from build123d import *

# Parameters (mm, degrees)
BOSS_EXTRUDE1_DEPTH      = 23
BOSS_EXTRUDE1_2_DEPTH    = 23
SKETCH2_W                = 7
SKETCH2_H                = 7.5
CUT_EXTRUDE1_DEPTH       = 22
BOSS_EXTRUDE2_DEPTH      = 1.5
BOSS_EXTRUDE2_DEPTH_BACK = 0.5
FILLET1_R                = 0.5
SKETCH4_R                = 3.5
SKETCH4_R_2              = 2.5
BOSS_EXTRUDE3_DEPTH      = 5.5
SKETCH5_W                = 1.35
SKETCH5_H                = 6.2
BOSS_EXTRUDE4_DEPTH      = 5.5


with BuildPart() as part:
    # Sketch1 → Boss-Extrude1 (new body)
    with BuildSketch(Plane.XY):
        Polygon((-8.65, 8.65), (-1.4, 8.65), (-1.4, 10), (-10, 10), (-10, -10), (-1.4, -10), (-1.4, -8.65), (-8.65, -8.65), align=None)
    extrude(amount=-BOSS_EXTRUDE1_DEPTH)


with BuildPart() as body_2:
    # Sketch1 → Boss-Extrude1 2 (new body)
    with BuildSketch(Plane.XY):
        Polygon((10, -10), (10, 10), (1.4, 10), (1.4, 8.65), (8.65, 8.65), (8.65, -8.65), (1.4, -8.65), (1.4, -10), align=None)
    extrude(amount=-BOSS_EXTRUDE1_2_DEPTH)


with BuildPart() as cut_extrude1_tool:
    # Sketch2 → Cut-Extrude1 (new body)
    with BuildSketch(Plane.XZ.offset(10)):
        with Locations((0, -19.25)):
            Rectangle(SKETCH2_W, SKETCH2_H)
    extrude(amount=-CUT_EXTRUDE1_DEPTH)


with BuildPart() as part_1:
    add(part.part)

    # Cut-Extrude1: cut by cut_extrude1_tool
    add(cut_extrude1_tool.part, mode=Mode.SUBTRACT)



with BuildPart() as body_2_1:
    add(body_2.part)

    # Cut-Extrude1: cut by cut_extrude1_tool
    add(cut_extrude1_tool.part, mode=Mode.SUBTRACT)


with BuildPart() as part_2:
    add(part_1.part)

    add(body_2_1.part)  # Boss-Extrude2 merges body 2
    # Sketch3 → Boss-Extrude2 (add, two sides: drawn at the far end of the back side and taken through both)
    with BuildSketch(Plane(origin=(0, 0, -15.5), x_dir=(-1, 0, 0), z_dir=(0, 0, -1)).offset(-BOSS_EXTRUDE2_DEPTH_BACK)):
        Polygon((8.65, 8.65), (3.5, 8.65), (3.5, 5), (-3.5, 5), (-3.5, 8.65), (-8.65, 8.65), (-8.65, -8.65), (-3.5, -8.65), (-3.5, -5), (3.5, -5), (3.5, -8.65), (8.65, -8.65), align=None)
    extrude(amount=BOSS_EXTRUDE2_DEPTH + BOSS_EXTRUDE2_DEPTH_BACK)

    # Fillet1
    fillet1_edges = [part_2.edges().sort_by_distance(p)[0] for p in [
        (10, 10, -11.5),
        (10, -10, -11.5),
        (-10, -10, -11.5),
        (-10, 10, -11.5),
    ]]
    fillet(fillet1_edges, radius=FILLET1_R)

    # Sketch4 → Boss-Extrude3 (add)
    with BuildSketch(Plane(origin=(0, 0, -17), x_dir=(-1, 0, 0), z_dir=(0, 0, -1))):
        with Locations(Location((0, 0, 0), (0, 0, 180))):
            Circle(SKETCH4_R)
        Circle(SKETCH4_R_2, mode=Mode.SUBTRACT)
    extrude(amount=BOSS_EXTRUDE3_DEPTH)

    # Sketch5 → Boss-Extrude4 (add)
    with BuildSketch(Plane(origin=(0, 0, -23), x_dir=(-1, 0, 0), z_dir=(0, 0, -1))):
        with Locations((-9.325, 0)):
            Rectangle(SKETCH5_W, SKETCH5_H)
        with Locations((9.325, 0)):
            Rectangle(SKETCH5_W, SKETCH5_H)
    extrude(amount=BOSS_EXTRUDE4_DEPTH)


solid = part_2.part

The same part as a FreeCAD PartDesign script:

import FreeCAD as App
import Part
import Sketcher
from FreeCAD import Vector
Q = App.Units.Quantity


def edges_at(feature, points):
    """Names of the edges that pass closest to the given points."""
    edges = feature.Shape.Edges
    near = lambda p: min(range(len(edges)), key=lambda i: edges[i].distToShape(Part.Vertex(*p))[0])
    return sorted({f"Edge{near(p) + 1}" for p in points})

doc = App.newDocument("Part")
body = doc.addObject("PartDesign::Body", "Body")

# Sketch on XY plane
sketch1 = body.newObject("Sketcher::SketchObject", "Sketch")
sketch1.AttachmentSupport = (doc.getObject("XY_Plane"), [""])
sketch1.MapMode = "FlatFace"
sketch1.addGeometry([
    Part.LineSegment(Vector(-8.65, 8.65, 0), Vector(-1.4, 8.65, 0)),  # 0
    Part.LineSegment(Vector(-1.4, 8.65, 0), Vector(-1.4, 10, 0)),  # 1
    Part.LineSegment(Vector(-1.4, 10, 0), Vector(-10, 10, 0)),  # 2
    Part.LineSegment(Vector(-10, 10, 0), Vector(-10, -10, 0)),  # 3
    Part.LineSegment(Vector(-10, -10, 0), Vector(-1.4, -10, 0)),  # 4
    Part.LineSegment(Vector(-1.4, -10, 0), Vector(-1.4, -8.65, 0)),  # 5
    Part.LineSegment(Vector(-1.4, -8.65, 0), Vector(-8.65, -8.65, 0)),  # 6
    Part.LineSegment(Vector(-8.65, -8.65, 0), Vector(-8.65, 8.65, 0)),  # 7
], False)
sketch1.addConstraint([
    Sketcher.Constraint("Coincident", 0, 2, 1, 1),
    Sketcher.Constraint("Coincident", 1, 2, 2, 1),
    Sketcher.Constraint("Coincident", 2, 2, 3, 1),
    Sketcher.Constraint("Coincident", 3, 2, 4, 1),
    Sketcher.Constraint("Coincident", 4, 2, 5, 1),
    Sketcher.Constraint("Coincident", 5, 2, 6, 1),
    Sketcher.Constraint("Coincident", 6, 2, 7, 1),
    Sketcher.Constraint("Coincident", 7, 2, 0, 1),
    Sketcher.Constraint("Horizontal", 0),
    Sketcher.Constraint("Vertical", 1),
    Sketcher.Constraint("Horizontal", 2),
    Sketcher.Constraint("Vertical", 3),
    Sketcher.Constraint("Horizontal", 4),
    Sketcher.Constraint("Vertical", 5),
    Sketcher.Constraint("Horizontal", 6),
    Sketcher.Constraint("Vertical", 7),
    Sketcher.Constraint("Symmetric", 1, 2, 4, 2, -1),
    Sketcher.Constraint("Equal", 1, 5),
    Sketcher.Constraint("DistanceY", 3, 2, 3, 1, Q("20 mm")),
    Sketcher.Constraint("DistanceX", 2, 2, 2, 1, Q("8.6 mm")),
    Sketcher.Constraint("DistanceY", 7, 1, 7, 2, Q("17.3 mm")),
    Sketcher.Constraint("DistanceX", 2, 2, -1, 1, Q("10 mm")),
    Sketcher.Constraint("DistanceX", 0, 1, 0, 2, Q("7.25 mm")),
])
pad1 = body.newObject("PartDesign::Pad", "Pad")
pad1.Profile = sketch1
pad1.Length = 23
pad1.Reversed = True
body2 = doc.addObject("PartDesign::Body", "Body001")

# Sketch on XY plane
sketch2 = body2.newObject("Sketcher::SketchObject", "Sketch001")
sketch2.AttachmentSupport = (doc.getObject("XY_Plane001"), [""])
sketch2.MapMode = "FlatFace"
sketch2.addGeometry([
    Part.LineSegment(Vector(10, -10, 0), Vector(10, 10, 0)),  # 0
    Part.LineSegment(Vector(10, 10, 0), Vector(1.4, 10, 0)),  # 1
    Part.LineSegment(Vector(1.4, 10, 0), Vector(1.4, 8.65, 0)),  # 2
    Part.LineSegment(Vector(1.4, 8.65, 0), Vector(8.65, 8.65, 0)),  # 3
    Part.LineSegment(Vector(8.65, 8.65, 0), Vector(8.65, -8.65, 0)),  # 4
    Part.LineSegment(Vector(8.65, -8.65, 0), Vector(1.4, -8.65, 0)),  # 5
    Part.LineSegment(Vector(1.4, -8.65, 0), Vector(1.4, -10, 0)),  # 6
    Part.LineSegment(Vector(1.4, -10, 0), Vector(10, -10, 0)),  # 7
], False)
sketch2.addConstraint([
    Sketcher.Constraint("Coincident", 0, 2, 1, 1),
    Sketcher.Constraint("Coincident", 1, 2, 2, 1),
    Sketcher.Constraint("Coincident", 2, 2, 3, 1),
    Sketcher.Constraint("Coincident", 3, 2, 4, 1),
    Sketcher.Constraint("Coincident", 4, 2, 5, 1),
    Sketcher.Constraint("Coincident", 5, 2, 6, 1),
    Sketcher.Constraint("Coincident", 6, 2, 7, 1),
    Sketcher.Constraint("Coincident", 7, 2, 0, 1),
    Sketcher.Constraint("Vertical", 0),
    Sketcher.Constraint("Horizontal", 1),
    Sketcher.Constraint("Vertical", 2),
    Sketcher.Constraint("Horizontal", 3),
    Sketcher.Constraint("Vertical", 4),
    Sketcher.Constraint("Horizontal", 5),
    Sketcher.Constraint("Vertical", 6),
    Sketcher.Constraint("Horizontal", 7),
    Sketcher.Constraint("Symmetric", 2, 2, 5, 2, -1),
    Sketcher.Constraint("Equal", 2, 6),
    Sketcher.Constraint("DistanceY", 0, 1, 0, 2, Q("20 mm")),
    Sketcher.Constraint("DistanceX", 1, 2, 1, 1, Q("8.6 mm")),
    Sketcher.Constraint("DistanceY", 4, 2, 4, 1, Q("17.3 mm")),
    Sketcher.Constraint("DistanceX", -1, 1, 0, 2, Q("10 mm")),
    Sketcher.Constraint("DistanceX", 3, 1, 3, 2, Q("7.25 mm")),
])
pad2 = body2.newObject("PartDesign::Pad", "Pad001")
pad2.Profile = sketch2
pad2.Length = 23
pad2.Reversed = True
body3 = doc.addObject("PartDesign::Body", "Body002")

# Sketch on XZ plane
sketch3 = body3.newObject("Sketcher::SketchObject", "Sketch002")
sketch3.AttachmentSupport = (doc.getObject("XZ_Plane002"), [""])
sketch3.MapMode = "FlatFace"
sketch3.AttachmentOffset = App.Placement(Vector(0, 0, 10), App.Rotation())
sketch3.addGeometry([
    Part.LineSegment(Vector(-3.5, -15.5, 0), Vector(-3.5, -23, 0)),
    Part.LineSegment(Vector(-3.5, -23, 0), Vector(3.5, -23, 0)),
    Part.LineSegment(Vector(3.5, -23, 0), Vector(3.5, -15.5, 0)),
    Part.LineSegment(Vector(3.5, -15.5, 0), Vector(-3.5, -15.5, 0)),
], False)
sketch3.addConstraint([
    Sketcher.Constraint("Coincident", 0, 2, 1, 1),
    Sketcher.Constraint("Coincident", 1, 2, 2, 1),
    Sketcher.Constraint("Coincident", 2, 2, 3, 1),
    Sketcher.Constraint("Coincident", 3, 2, 0, 1),
    Sketcher.Constraint("Vertical", 0),
    Sketcher.Constraint("Horizontal", 1),
    Sketcher.Constraint("Vertical", 2),
    Sketcher.Constraint("Horizontal", 3),
    Sketcher.Constraint("DistanceX", 1, 1, 1, 2, Q("7 mm")),
    Sketcher.Constraint("DistanceY", 0, 2, 0, 1, Q("7.5 mm")),
    Sketcher.Constraint("DistanceY", 0, 2, -1, 1, Q("23 mm")),
    Sketcher.Constraint("DistanceX", 0, 2, -1, 1, Q("3.5 mm")),
])
pad3 = body3.newObject("PartDesign::Pad", "Pad002")
pad3.Profile = sketch3
pad3.Length = 22
pad3.Reversed = True
doc.recompute()

body4 = doc.addObject("PartDesign::Body", "Body003")
body4.BaseFeature = body3
boolean = body.newObject("PartDesign::Boolean", "Boolean")
boolean.Type = "Cut"
boolean.addObjects([body4])
doc.recompute()

boolean2 = body2.newObject("PartDesign::Boolean", "Boolean001")
boolean2.Type = "Cut"
boolean2.addObjects([body3])
body.AllowCompound = True
doc.recompute()

boolean3 = body.newObject("PartDesign::Boolean", "Boolean002")
boolean3.Type = "Fuse"
boolean3.addObjects([body2])

# Sketch on XY plane
sketch4 = body.newObject("Sketcher::SketchObject", "Sketch003")
sketch4.AttachmentSupport = (doc.getObject("XY_Plane"), [""])
sketch4.MapMode = "FlatFace"
sketch4.AttachmentOffset = App.Placement(Vector(0, 0, -15.5), App.Rotation())
sketch4.addGeometry([
    Part.LineSegment(Vector(-8.65, 8.65, 0), Vector(-3.5, 8.65, 0)),  # 0
    Part.LineSegment(Vector(-3.5, 8.65, 0), Vector(-3.5, 5, 0)),  # 1
    Part.LineSegment(Vector(-3.5, 5, 0), Vector(3.5, 5, 0)),  # 2
    Part.LineSegment(Vector(3.5, 5, 0), Vector(3.5, 8.65, 0)),  # 3
    Part.LineSegment(Vector(3.5, 8.65, 0), Vector(8.65, 8.65, 0)),  # 4
    Part.LineSegment(Vector(8.65, 8.65, 0), Vector(8.65, -8.65, 0)),  # 5
    Part.LineSegment(Vector(8.65, -8.65, 0), Vector(3.5, -8.65, 0)),  # 6
    Part.LineSegment(Vector(3.5, -8.65, 0), Vector(3.5, -5, 0)),  # 7
    Part.LineSegment(Vector(3.5, -5, 0), Vector(-3.5, -5, 0)),  # 8
    Part.LineSegment(Vector(-3.5, -5, 0), Vector(-3.5, -8.65, 0)),  # 9
    Part.LineSegment(Vector(-3.5, -8.65, 0), Vector(-8.65, -8.65, 0)),  # 10
    Part.LineSegment(Vector(-8.65, -8.65, 0), Vector(-8.65, 8.65, 0)),  # 11
], False)
sketch4.addConstraint([
    Sketcher.Constraint("Coincident", 0, 2, 1, 1),
    Sketcher.Constraint("Coincident", 1, 2, 2, 1),
    Sketcher.Constraint("Coincident", 2, 2, 3, 1),
    Sketcher.Constraint("Coincident", 3, 2, 4, 1),
    Sketcher.Constraint("Coincident", 4, 2, 5, 1),
    Sketcher.Constraint("Coincident", 5, 2, 6, 1),
    Sketcher.Constraint("Coincident", 6, 2, 7, 1),
    Sketcher.Constraint("Coincident", 7, 2, 8, 1),
    Sketcher.Constraint("Coincident", 8, 2, 9, 1),
    Sketcher.Constraint("Coincident", 9, 2, 10, 1),
    Sketcher.Constraint("Coincident", 10, 2, 11, 1),
    Sketcher.Constraint("Coincident", 11, 2, 0, 1),
    Sketcher.Constraint("Horizontal", 0),
    Sketcher.Constraint("Vertical", 1),
    Sketcher.Constraint("Horizontal", 2),
    Sketcher.Constraint("Vertical", 3),
    Sketcher.Constraint("Horizontal", 4),
    Sketcher.Constraint("Vertical", 5),
    Sketcher.Constraint("Horizontal", 6),
    Sketcher.Constraint("Vertical", 7),
    Sketcher.Constraint("Horizontal", 8),
    Sketcher.Constraint("Vertical", 9),
    Sketcher.Constraint("Horizontal", 10),
    Sketcher.Constraint("Vertical", 11),
    Sketcher.Constraint("Symmetric", 0, 2, 6, 2, -1, 1),
    Sketcher.Constraint("Symmetric", 2, 2, 8, 2, -1, 1),
    Sketcher.Constraint("Symmetric", 4, 2, 10, 2, -1, 1),
    Sketcher.Constraint("Symmetric", 0, 2, 3, 2, -2),
    Sketcher.Constraint("DistanceX", 2, 1, 2, 2, Q("7 mm")),
    Sketcher.Constraint("DistanceY", 5, 2, 5, 1, Q("17.3 mm")),
    Sketcher.Constraint("DistanceY", -1, 1, 1, 2, Q("5 mm")),
    Sketcher.Constraint("DistanceX", 0, 1, 0, 2, Q("5.15 mm")),
])
pad4 = body.newObject("PartDesign::Pad", "Pad003")
pad4.Profile = sketch4
pad4.Type = "TwoLengths"
pad4.Length = 1.5
pad4.Length2 = 0.5
pad4.Reversed = True
doc.recompute()

fillet = body.newObject("PartDesign::Fillet", "Fillet")
fillet.Base = (pad4, edges_at(pad4, [
    (10, 10, -11.5),
    (10, -10, -11.5),
    (-10, -10, -11.5),
    (-10, 10, -11.5),
]))
fillet.Radius = 0.5

# Sketch on XY plane
sketch5 = body.newObject("Sketcher::SketchObject", "Sketch004")
sketch5.AttachmentSupport = (doc.getObject("XY_Plane"), [""])
sketch5.MapMode = "FlatFace"
sketch5.AttachmentOffset = App.Placement(Vector(0, 0, -17), App.Rotation())
sketch5.addGeometry([
    Part.Circle(Vector(0, 0, 0), Vector(0, 0, 1), 3.5),
    Part.Circle(Vector(0, 0, 0), Vector(0, 0, 1), 2.5),
], False)
sketch5.addConstraint([
    Sketcher.Constraint("Coincident", 0, 3, -1, 1),
    Sketcher.Constraint("Coincident", 1, 3, -1, 1),
    Sketcher.Constraint("Diameter", 0, Q("7 mm")),
    Sketcher.Constraint("Diameter", 1, Q("5 mm")),
])
pad5 = body.newObject("PartDesign::Pad", "Pad004")
pad5.Profile = sketch5
pad5.Length = 5.5
pad5.Reversed = True

# Sketch on XY plane
sketch6 = body.newObject("Sketcher::SketchObject", "Sketch005")
sketch6.AttachmentSupport = (doc.getObject("XY_Plane"), [""])
sketch6.MapMode = "FlatFace"
sketch6.AttachmentOffset = App.Placement(Vector(0, 0, -23), App.Rotation())
sketch6.addGeometry([
    Part.LineSegment(Vector(10, 3.1, 0), Vector(10, -3.1, 0)),  # 0
    Part.LineSegment(Vector(10, -3.1, 0), Vector(8.65, -3.1, 0)),  # 1
    Part.LineSegment(Vector(8.65, -3.1, 0), Vector(8.65, 3.1, 0)),  # 2
    Part.LineSegment(Vector(8.65, 3.1, 0), Vector(10, 3.1, 0)),  # 3
    Part.LineSegment(Vector(-8.65, 3.1, 0), Vector(-8.65, -3.1, 0)),  # 4
    Part.LineSegment(Vector(-8.65, -3.1, 0), Vector(-10, -3.1, 0)),  # 5
    Part.LineSegment(Vector(-10, -3.1, 0), Vector(-10, 3.1, 0)),  # 6
    Part.LineSegment(Vector(-10, 3.1, 0), Vector(-8.65, 3.1, 0)),  # 7
], False)
sketch6.addConstraint([
    Sketcher.Constraint("Coincident", 0, 2, 1, 1),
    Sketcher.Constraint("Coincident", 1, 2, 2, 1),
    Sketcher.Constraint("Coincident", 2, 2, 3, 1),
    Sketcher.Constraint("Coincident", 3, 2, 0, 1),
    Sketcher.Constraint("Coincident", 4, 2, 5, 1),
    Sketcher.Constraint("Coincident", 5, 2, 6, 1),
    Sketcher.Constraint("Coincident", 6, 2, 7, 1),
    Sketcher.Constraint("Coincident", 7, 2, 4, 1),
    Sketcher.Constraint("Vertical", 0),
    Sketcher.Constraint("Horizontal", 1),
    Sketcher.Constraint("Vertical", 2),
    Sketcher.Constraint("Horizontal", 3),
    Sketcher.Constraint("Vertical", 4),
    Sketcher.Constraint("Horizontal", 5),
    Sketcher.Constraint("Vertical", 6),
    Sketcher.Constraint("Horizontal", 7),
    Sketcher.Constraint("Symmetric", 2, 2, 4, 2, -1, 1),
    Sketcher.Constraint("Symmetric", 0, 2, 6, 2, -1, 1),
    Sketcher.Constraint("Horizontal", 1, 2, 4, 2),
    Sketcher.Constraint("DistanceY", 0, 2, 0, 1, Q("6.2 mm")),
    Sketcher.Constraint("DistanceX", -1, 1, 0, 2, Q("10 mm")),
    Sketcher.Constraint("DistanceX", 1, 2, 1, 1, Q("1.35 mm")),
])
pad6 = body.newObject("PartDesign::Pad", "Pad005")
pad6.Profile = sketch6
pad6.Length = 5.5
pad6.Reversed = True

doc.recompute()
